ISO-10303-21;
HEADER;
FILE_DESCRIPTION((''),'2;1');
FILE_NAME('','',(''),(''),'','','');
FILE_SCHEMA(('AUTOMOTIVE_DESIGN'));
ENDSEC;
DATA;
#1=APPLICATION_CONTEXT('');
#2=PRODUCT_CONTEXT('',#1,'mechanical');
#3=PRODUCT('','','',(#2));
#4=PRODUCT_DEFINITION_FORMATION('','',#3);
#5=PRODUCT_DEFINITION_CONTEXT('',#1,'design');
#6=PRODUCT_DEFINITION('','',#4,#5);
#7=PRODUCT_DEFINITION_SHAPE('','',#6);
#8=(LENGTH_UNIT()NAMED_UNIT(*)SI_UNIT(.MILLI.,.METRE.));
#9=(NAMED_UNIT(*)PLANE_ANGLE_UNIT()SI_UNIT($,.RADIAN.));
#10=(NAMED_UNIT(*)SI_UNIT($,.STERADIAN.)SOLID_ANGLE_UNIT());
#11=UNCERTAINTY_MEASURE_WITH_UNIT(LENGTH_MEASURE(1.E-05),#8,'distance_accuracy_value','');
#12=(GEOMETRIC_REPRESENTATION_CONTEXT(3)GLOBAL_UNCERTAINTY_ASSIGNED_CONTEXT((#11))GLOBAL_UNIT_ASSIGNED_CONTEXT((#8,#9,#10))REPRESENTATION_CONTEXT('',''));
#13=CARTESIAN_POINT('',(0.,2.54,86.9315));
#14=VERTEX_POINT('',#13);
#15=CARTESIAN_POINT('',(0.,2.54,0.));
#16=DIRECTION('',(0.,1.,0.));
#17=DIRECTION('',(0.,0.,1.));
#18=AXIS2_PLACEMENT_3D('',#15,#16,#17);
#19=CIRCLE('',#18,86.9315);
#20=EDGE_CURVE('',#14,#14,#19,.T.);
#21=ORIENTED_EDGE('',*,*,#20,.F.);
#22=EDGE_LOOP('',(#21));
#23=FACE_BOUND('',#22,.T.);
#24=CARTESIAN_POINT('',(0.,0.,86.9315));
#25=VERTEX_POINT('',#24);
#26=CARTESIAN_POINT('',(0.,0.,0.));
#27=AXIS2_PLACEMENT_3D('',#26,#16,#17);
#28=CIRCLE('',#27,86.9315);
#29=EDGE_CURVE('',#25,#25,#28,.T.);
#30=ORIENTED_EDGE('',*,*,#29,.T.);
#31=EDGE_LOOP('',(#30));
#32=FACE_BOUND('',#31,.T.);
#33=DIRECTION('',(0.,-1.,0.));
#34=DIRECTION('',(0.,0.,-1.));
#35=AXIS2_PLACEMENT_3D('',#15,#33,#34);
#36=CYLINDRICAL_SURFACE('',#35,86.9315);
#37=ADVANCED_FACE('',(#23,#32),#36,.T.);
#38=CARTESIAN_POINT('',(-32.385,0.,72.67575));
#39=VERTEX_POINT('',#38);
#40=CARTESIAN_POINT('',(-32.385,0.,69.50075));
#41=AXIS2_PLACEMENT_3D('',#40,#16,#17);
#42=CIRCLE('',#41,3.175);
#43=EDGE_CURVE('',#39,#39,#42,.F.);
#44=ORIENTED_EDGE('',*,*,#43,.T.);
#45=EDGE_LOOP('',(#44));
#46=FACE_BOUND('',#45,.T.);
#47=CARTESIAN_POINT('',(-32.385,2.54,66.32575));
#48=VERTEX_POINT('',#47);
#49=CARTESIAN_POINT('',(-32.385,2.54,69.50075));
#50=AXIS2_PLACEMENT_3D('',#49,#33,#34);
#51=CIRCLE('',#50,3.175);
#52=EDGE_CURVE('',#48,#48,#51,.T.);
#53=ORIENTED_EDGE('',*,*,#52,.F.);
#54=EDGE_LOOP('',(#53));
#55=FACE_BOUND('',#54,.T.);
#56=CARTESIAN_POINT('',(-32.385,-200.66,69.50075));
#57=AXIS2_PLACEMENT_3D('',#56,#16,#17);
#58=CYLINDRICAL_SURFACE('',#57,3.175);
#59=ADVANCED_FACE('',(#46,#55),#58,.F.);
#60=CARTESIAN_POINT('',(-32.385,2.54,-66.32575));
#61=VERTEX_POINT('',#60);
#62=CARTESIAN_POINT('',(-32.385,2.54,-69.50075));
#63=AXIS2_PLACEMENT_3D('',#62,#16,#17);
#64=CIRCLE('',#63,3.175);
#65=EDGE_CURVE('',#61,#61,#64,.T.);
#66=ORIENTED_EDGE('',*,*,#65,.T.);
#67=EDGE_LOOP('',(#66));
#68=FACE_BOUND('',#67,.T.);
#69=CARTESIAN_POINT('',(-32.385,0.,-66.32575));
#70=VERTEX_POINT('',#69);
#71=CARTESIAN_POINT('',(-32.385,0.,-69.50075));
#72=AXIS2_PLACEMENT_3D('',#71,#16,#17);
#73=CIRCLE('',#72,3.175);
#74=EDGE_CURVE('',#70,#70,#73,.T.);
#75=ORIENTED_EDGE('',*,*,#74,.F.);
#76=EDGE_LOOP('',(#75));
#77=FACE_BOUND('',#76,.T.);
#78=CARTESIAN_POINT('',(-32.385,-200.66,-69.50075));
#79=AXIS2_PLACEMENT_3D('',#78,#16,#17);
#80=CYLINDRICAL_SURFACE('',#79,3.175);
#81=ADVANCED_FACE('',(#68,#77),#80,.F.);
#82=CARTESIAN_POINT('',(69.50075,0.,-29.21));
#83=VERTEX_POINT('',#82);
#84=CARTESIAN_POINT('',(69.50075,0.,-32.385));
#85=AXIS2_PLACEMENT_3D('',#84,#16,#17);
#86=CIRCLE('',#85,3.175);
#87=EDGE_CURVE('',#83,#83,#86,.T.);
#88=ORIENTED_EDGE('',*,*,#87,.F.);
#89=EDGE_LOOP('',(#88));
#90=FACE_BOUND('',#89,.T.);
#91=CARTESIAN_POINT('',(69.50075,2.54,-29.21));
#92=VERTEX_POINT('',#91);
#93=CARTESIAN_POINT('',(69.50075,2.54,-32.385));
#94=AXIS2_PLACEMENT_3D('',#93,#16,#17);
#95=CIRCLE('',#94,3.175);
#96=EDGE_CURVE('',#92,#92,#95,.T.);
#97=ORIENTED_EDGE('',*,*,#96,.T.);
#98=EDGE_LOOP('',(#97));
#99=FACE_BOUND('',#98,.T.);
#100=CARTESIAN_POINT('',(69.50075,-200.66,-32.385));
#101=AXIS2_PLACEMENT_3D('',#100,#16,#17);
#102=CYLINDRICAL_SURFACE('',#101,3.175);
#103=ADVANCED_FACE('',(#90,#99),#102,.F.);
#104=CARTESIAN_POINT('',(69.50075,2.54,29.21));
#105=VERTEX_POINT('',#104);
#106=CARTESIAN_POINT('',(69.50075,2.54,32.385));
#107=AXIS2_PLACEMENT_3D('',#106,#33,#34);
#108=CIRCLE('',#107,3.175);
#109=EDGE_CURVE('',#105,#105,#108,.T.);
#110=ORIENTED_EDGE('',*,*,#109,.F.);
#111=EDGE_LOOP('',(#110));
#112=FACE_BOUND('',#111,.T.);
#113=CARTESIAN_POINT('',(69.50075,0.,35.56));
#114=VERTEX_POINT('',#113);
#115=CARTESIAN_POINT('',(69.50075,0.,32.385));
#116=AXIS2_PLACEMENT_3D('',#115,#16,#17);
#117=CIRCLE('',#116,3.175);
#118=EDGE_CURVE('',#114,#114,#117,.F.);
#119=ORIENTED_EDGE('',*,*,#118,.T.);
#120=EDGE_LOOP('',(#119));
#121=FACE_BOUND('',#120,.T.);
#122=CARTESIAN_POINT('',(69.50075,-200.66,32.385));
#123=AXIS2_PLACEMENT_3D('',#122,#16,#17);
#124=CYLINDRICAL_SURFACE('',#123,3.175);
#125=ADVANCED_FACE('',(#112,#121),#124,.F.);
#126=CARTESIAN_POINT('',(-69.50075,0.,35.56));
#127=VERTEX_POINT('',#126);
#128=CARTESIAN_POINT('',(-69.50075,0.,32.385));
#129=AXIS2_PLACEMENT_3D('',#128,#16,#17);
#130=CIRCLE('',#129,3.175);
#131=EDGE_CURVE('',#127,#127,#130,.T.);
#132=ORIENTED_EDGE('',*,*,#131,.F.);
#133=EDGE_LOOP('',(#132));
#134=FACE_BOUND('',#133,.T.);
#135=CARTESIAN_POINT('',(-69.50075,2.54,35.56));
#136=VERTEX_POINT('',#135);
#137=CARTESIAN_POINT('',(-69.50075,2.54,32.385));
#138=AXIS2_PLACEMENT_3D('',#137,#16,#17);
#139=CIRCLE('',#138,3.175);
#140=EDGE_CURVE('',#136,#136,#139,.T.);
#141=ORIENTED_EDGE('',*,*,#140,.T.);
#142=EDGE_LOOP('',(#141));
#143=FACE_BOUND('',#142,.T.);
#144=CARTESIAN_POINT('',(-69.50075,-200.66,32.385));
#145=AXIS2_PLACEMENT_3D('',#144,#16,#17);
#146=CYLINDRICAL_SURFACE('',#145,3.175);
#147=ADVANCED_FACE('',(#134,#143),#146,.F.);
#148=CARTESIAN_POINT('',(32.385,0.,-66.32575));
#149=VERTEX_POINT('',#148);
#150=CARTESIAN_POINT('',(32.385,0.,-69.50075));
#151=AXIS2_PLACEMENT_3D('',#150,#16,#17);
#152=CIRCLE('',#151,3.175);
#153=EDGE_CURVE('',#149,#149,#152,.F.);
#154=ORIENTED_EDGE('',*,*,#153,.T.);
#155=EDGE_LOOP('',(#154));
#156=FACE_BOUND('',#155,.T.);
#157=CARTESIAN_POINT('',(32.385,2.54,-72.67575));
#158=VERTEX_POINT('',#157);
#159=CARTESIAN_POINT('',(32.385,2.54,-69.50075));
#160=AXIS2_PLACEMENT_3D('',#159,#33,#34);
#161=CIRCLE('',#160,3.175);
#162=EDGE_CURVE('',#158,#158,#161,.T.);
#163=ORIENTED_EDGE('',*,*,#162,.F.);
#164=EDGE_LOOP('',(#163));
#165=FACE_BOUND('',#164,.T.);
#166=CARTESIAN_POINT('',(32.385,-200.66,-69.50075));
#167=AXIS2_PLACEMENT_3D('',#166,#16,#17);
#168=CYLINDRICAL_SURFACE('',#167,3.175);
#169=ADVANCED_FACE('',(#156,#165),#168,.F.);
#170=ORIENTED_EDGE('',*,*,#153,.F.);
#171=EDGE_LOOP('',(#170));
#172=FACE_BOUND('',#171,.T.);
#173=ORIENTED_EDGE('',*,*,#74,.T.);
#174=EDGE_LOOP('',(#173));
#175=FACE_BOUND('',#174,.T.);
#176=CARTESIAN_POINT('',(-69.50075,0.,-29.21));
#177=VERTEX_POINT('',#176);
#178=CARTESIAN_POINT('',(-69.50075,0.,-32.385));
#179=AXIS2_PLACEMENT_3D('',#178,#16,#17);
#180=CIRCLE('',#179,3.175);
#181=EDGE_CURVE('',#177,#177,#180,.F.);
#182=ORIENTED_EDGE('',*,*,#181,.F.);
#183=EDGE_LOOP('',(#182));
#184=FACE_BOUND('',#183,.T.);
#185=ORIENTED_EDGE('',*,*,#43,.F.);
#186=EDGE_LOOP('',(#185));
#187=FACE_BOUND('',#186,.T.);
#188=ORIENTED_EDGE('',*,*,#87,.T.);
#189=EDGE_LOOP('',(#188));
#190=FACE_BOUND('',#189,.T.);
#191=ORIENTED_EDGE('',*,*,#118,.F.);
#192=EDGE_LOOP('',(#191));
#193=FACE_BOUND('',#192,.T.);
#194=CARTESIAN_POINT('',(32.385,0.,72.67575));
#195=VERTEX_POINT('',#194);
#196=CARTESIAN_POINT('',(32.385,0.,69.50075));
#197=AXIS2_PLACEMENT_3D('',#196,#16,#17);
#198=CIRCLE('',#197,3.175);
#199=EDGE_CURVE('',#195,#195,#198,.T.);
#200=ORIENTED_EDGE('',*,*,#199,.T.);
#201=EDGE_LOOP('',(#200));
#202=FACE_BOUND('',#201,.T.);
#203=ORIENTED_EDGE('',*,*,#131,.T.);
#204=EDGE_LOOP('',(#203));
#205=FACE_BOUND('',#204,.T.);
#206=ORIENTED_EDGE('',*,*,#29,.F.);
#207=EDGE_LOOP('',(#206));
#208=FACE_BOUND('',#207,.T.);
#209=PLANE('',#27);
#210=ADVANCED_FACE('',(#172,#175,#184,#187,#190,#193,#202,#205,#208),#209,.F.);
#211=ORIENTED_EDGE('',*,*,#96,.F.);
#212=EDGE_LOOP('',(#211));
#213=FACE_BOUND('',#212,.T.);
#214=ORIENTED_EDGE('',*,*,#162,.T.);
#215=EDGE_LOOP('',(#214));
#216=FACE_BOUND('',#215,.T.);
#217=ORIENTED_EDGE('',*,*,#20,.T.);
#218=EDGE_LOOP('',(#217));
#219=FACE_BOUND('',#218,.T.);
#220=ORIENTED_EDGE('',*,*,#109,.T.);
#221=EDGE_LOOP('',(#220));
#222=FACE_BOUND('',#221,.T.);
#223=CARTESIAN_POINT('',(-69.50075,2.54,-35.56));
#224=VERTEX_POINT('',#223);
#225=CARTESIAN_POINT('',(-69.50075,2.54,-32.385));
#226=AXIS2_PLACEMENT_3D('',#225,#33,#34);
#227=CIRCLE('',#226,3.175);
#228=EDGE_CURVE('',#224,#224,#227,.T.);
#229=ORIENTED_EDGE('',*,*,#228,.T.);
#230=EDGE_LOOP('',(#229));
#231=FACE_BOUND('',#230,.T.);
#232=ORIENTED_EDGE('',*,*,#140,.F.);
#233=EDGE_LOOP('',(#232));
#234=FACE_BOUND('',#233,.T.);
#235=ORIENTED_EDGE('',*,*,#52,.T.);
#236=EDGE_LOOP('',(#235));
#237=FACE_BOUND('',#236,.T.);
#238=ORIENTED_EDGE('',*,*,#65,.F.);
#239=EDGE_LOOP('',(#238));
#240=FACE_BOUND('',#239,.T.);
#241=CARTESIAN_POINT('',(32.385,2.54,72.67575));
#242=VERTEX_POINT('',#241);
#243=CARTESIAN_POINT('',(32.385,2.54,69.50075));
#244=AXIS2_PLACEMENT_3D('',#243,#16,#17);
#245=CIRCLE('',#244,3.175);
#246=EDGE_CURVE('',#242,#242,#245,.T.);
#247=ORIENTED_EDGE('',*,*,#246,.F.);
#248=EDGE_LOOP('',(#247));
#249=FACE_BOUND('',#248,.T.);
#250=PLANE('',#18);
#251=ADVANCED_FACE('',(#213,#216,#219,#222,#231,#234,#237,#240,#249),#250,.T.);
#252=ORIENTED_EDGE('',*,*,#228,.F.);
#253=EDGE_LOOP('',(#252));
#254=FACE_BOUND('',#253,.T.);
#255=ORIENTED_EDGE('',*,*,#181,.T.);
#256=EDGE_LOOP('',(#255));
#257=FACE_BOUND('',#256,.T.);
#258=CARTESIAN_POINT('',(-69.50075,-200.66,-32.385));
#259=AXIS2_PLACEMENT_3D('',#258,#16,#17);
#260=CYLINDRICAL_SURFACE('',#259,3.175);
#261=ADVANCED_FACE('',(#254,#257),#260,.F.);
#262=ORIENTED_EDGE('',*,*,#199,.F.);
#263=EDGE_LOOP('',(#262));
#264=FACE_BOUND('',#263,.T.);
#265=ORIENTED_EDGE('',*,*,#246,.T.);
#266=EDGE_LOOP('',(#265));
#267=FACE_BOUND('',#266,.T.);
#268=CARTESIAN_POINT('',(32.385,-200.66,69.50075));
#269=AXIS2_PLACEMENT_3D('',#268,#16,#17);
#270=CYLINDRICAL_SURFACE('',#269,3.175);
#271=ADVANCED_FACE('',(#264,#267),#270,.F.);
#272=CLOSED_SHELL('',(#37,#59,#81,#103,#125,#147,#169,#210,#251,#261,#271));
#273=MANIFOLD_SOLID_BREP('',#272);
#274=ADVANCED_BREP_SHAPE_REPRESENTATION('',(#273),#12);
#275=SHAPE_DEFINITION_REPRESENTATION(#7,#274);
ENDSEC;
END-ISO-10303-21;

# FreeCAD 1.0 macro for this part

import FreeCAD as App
import Part
import Sketcher
from FreeCAD import Vector
Q = App.Units.Quantity

doc = App.newDocument("Part")
body = doc.addObject("PartDesign::Body", "Body")

sketch1 = body.newObject("Sketcher::SketchObject", "Sketch")
sketch1.AttachmentSupport = (doc.getObject("XZ_Plane"), [""])
sketch1.MapMode = "FlatFace"
sketch1.addGeometry(Part.Circle(Vector(0, 0, 0), Vector(0, 0, 1), 87), False)
sketch1.addConstraint([
    Sketcher.Constraint("Coincident", 0, 3, -1, 1),
    Sketcher.Constraint("Diameter", 0, Q("6.845 in")),
])
pad1 = body.newObject("PartDesign::Pad", "Pad")
pad1.Profile = sketch1
pad1.Length = Q("0.1 in")
pad1.Reversed = True

sketch2 = body.newObject("Sketcher::SketchObject", "Sketch001")
sketch2.AttachmentSupport = (doc.getObject("XZ_Plane"), [""])
sketch2.MapMode = "FlatFace"
sketch2.AttachmentOffset = App.Placement(Vector(0, 0, -0.1 * 25.4), App.Rotation())
sketch2.addGeometry([
    Part.Circle(Vector(-32.4, -69.5, 0), Vector(0, 0, 1), 3.2),
    Part.Circle(Vector(32.4, -69.5, 0), Vector(0, 0, 1), 3.2),
    Part.Circle(Vector(69.5, -32.4, 0), Vector(0, 0, 1), 3.2),
    Part.Circle(Vector(69.5, 32.4, 0), Vector(0, 0, 1), 3.2),
    Part.Circle(Vector(32.4, 69.5, 0), Vector(0, 0, 1), 3.2),
    Part.Circle(Vector(-32.4, 69.5, 0), Vector(0, 0, 1), 3.2),
    Part.Circle(Vector(-69.5, 32.4, 0), Vector(0, 0, 1), 3.2),
    Part.Circle(Vector(-69.5, -32.4, 0), Vector(0, 0, 1), 3.2),
], False)
sketch2.addConstraint([
    Sketcher.Constraint("Equal", 0, 1),
    Sketcher.Constraint("Equal", 1, 2),
    Sketcher.Constraint("Equal", 2, 3),
    Sketcher.Constraint("Equal", 3, 4),
    Sketcher.Constraint("Equal", 4, 5),
    Sketcher.Constraint("Equal", 5, 6),
    Sketcher.Constraint("Equal", 6, 7),
    Sketcher.Constraint("Symmetric", 0, 3, 4, 3, -1, 1),
    Sketcher.Constraint("Symmetric", 1, 3, 5, 3, -1, 1),
    Sketcher.Constraint("Symmetric", 2, 3, 6, 3, -1, 1),
    Sketcher.Constraint("Symmetric", 3, 3, 7, 3, -1, 1),
    Sketcher.Constraint("Symmetric", 0, 3, 1, 3, -2),
    Sketcher.Constraint("Symmetric", 3, 3, 6, 3, -2),
    Sketcher.Constraint("Diameter", 0, Q("0.25 in")),
    Sketcher.Constraint("DistanceX", 0, 3, 1, 3, Q("2.55 in")),
    Sketcher.Constraint("DistanceY", 2, 3, 3, 3, Q("2.55 in")),
    Sketcher.Constraint("DistanceY", 1, 3, 4, 3, Q("5.4725 in")),
    Sketcher.Constraint("DistanceX", 6, 3, 3, 3, Q("5.4725 in")),
])
pocket1 = body.newObject("PartDesign::Pocket", "Pocket")
pocket1.Profile = sketch2
pocket1.Length = Q("8 in")
pocket1.Reversed = True

doc.recompute()
